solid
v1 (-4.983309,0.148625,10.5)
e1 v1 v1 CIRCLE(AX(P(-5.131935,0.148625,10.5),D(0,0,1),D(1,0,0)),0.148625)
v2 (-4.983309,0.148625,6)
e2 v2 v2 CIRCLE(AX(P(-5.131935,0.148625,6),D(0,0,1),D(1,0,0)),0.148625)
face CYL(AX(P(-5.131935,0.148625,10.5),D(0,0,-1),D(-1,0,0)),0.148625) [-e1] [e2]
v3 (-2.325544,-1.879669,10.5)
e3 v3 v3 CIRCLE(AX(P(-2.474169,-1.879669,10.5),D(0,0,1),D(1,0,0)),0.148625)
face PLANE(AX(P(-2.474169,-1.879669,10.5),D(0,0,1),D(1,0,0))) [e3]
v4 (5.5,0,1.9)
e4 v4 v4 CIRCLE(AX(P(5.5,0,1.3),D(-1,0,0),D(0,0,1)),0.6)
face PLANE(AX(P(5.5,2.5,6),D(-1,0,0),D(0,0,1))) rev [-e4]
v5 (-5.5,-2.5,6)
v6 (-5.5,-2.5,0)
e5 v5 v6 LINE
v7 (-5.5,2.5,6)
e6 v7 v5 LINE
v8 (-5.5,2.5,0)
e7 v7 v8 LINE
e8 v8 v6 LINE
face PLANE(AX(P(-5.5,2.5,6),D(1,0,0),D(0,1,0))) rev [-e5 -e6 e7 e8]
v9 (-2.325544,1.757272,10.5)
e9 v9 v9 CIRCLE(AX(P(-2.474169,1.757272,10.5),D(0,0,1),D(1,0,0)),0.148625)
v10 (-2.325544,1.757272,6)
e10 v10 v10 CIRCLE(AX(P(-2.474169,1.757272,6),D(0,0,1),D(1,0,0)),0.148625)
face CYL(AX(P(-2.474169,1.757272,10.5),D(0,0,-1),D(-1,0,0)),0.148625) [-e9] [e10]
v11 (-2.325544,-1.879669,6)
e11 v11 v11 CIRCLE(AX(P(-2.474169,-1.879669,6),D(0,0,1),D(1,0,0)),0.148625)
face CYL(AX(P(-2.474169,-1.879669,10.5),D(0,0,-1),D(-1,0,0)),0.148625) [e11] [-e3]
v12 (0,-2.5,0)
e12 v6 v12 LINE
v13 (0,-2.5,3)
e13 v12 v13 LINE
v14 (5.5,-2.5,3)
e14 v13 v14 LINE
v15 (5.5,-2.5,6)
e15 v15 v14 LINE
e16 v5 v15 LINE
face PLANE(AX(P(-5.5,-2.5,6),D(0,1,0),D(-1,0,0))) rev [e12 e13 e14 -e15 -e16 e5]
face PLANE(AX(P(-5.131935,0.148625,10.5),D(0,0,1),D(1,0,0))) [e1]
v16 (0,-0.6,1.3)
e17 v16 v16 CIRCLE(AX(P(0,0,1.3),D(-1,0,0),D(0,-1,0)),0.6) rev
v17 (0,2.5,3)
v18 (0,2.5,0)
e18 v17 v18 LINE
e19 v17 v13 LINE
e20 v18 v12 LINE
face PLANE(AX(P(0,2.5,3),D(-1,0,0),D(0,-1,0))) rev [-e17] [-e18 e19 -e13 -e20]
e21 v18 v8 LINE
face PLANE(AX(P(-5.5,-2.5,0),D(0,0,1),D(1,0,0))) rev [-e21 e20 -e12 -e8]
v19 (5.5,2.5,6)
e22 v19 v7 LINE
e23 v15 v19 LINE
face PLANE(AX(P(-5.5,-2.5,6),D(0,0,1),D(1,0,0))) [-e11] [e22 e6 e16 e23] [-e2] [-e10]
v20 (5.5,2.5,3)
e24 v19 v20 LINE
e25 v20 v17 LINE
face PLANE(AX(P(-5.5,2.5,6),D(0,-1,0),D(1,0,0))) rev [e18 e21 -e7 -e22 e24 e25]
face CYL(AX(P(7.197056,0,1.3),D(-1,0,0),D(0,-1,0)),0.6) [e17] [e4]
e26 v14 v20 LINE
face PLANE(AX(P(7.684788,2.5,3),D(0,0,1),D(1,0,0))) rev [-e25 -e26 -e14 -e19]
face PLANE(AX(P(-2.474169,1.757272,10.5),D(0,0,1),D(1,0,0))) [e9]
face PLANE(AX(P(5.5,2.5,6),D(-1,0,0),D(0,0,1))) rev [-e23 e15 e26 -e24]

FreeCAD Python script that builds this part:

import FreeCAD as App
import Part
import Sketcher
Q = App.Units.Quantity

doc = App.newDocument("Part")
body = doc.addObject("PartDesign::Body", "Body")

# Sketch on XY plane
sketch1 = doc.addObject("Sketcher::SketchObject", "Sketch")
body.addObject(sketch1)
sketch1.AttachmentSupport = (doc.XY_Plane, [""])
sketch1.MapMode = "FlatFace"
sketch1.addGeometry([
    Part.LineSegment(App.Vector(-6, 2, 0), App.Vector(-6, -2, 0)),
    Part.LineSegment(App.Vector(-6, -2, 0), App.Vector(6, -2, 0)),
    Part.LineSegment(App.Vector(6, -2, 0), App.Vector(6, 2, 0)),
    Part.LineSegment(App.Vector(6, 2, 0), App.Vector(-6, 2, 0)),
], False)
sketch1.addConstraint([
    Sketcher.Constraint("Coincident", 0, 2, 1, 1),
    Sketcher.Constraint("Coincident", 1, 2, 2, 1),
    Sketcher.Constraint("Coincident", 2, 2, 3, 1),
    Sketcher.Constraint("Coincident", 3, 2, 0, 1),
    Sketcher.Constraint("Vertical", 0),
    Sketcher.Constraint("Horizontal", 1),
    Sketcher.Constraint("Vertical", 2),
    Sketcher.Constraint("Horizontal", 3),
    Sketcher.Constraint("Symmetric", 0, 2, 2, 2, -1, 1),
    Sketcher.Constraint("DistanceX", 1, 1, 1, 2, Q("11 mm")),
    Sketcher.Constraint("DistanceY", 0, 2, 0, 1, Q("5 mm")),
])
pad1 = doc.addObject("PartDesign::Pad", "Pad")
body.addObject(pad1)
pad1.Profile = sketch1
pad1.Length = 6

# Sketch on XZ plane
sketch2 = doc.addObject("Sketcher::SketchObject", "Sketch001")
body.addObject(sketch2)
sketch2.AttachmentSupport = (doc.XZ_Plane, [""])
sketch2.MapMode = "FlatFace"
sketch2.AttachmentOffset = App.Placement(App.Vector(0, 0, -2.5), App.Rotation())
sketch2.addGeometry([
    Part.LineSegment(App.Vector(0, 3, 0), App.Vector(45, 3, 0)),  # 0
    Part.LineSegment(App.Vector(45, 3, 0), App.Vector(95, -51, 0)),  # 1
    Part.LineSegment(App.Vector(95, -51, 0), App.Vector(51, -93, 0)),  # 2
    Part.LineSegment(App.Vector(51, -93, 0), App.Vector(0, -39, 0)),  # 3
    Part.LineSegment(App.Vector(0, -39, 0), App.Vector(0, 3, 0)),  # 4
], False)
sketch2.addConstraint([
    Sketcher.Constraint("Coincident", 0, 2, 1, 1),
    Sketcher.Constraint("Coincident", 1, 2, 2, 1),
    Sketcher.Constraint("Coincident", 2, 2, 3, 1),
    Sketcher.Constraint("Coincident", 3, 2, 4, 1),
    Sketcher.Constraint("Coincident", 4, 2, 0, 1),
    Sketcher.Constraint("Horizontal", 0),
    Sketcher.Constraint("Vertical", 4),
    Sketcher.Constraint("PointOnObject", 3, 2, -2),
    Sketcher.Constraint("Perpendicular", 1, 2),
    Sketcher.Constraint("Perpendicular", 2, 3),
    Sketcher.Constraint("Equal", 1, 3),
    Sketcher.Constraint("DistanceY", -1, 1, 0, 2, Q("3 mm")),
    Sketcher.Constraint("Distance", 2, Q("61.261321 mm")),
    Sketcher.Constraint("DistanceX", 0, 1, 0, 2, Q("44.728355 mm")),
    Sketcher.Constraint("DistanceX", -1, 1, 1, 2, Q("95.353188 mm")),
])
pocket1 = doc.addObject("PartDesign::Pocket", "Pocket")
body.addObject(pocket1)
pocket1.Profile = sketch2
pocket1.Type = "ThroughAll"
pocket1.Reversed = True

# Sketch on YZ plane
sketch3 = doc.addObject("Sketcher::SketchObject", "Sketch002")
body.addObject(sketch3)
sketch3.AttachmentSupport = (doc.YZ_Plane, [""])
sketch3.MapMode = "FlatFace"
sketch3.addGeometry(Part.Circle(App.Vector(0, 1.3, 0), App.Vector(0, 0, 1), 0.6), False)
sketch3.addConstraint([
    Sketcher.Constraint("PointOnObject", 0, 3, -2),
    Sketcher.Constraint("Diameter", 0, Q("1.2 mm")),
    Sketcher.Constraint("DistanceY", -1, 1, 0, 3, Q("1.3 mm")),
])
pad2 = doc.addObject("PartDesign::Pad", "Pad001")
body.addObject(pad2)
pad2.Profile = sketch3
pad2.Length = 5.5

# Sketch on XY plane
sketch4 = doc.addObject("Sketcher::SketchObject", "Sketch003")
body.addObject(sketch4)
sketch4.AttachmentSupport = (doc.XY_Plane, [""])
sketch4.MapMode = "FlatFace"
sketch4.AttachmentOffset = App.Placement(App.Vector(0, 0, 6), App.Rotation())
sketch4.addGeometry([
    Part.Circle(App.Vector(-5.13, 0.15, 0), App.Vector(0, 0, 1), 0.15),
    Part.Circle(App.Vector(-2.47, 1.76, 0), App.Vector(0, 0, 1), 0.15),
    Part.Circle(App.Vector(-2.47, -1.88, 0), App.Vector(0, 0, 1), 0.15),
], False)
sketch4.addConstraint([
    Sketcher.Constraint("Equal", 0, 1),
    Sketcher.Constraint("Equal", 1, 2),
    Sketcher.Constraint("Vertical", 1, 3, 2, 3),
    Sketcher.Constraint("Diameter", 0, Q("0.29725 mm")),
    Sketcher.Constraint("DistanceX", 1, 3, -1, 1, Q("2.474169 mm")),
    Sketcher.Constraint("DistanceY", 2, 3, -1, 1, Q("1.879669 mm")),
    Sketcher.Constraint("DistanceY", 2, 3, 1, 3, Q("3.636942 mm")),
    Sketcher.Constraint("DistanceX", 0, 3, -1, 1, Q("5.131935 mm")),
    Sketcher.Constraint("DistanceY", -1, 1, 0, 3, Q("0.148625 mm")),
])
pad3 = doc.addObject("PartDesign::Pad", "Pad002")
body.addObject(pad3)
pad3.Profile = sketch4
pad3.Length = 4.5

doc.recompute()
